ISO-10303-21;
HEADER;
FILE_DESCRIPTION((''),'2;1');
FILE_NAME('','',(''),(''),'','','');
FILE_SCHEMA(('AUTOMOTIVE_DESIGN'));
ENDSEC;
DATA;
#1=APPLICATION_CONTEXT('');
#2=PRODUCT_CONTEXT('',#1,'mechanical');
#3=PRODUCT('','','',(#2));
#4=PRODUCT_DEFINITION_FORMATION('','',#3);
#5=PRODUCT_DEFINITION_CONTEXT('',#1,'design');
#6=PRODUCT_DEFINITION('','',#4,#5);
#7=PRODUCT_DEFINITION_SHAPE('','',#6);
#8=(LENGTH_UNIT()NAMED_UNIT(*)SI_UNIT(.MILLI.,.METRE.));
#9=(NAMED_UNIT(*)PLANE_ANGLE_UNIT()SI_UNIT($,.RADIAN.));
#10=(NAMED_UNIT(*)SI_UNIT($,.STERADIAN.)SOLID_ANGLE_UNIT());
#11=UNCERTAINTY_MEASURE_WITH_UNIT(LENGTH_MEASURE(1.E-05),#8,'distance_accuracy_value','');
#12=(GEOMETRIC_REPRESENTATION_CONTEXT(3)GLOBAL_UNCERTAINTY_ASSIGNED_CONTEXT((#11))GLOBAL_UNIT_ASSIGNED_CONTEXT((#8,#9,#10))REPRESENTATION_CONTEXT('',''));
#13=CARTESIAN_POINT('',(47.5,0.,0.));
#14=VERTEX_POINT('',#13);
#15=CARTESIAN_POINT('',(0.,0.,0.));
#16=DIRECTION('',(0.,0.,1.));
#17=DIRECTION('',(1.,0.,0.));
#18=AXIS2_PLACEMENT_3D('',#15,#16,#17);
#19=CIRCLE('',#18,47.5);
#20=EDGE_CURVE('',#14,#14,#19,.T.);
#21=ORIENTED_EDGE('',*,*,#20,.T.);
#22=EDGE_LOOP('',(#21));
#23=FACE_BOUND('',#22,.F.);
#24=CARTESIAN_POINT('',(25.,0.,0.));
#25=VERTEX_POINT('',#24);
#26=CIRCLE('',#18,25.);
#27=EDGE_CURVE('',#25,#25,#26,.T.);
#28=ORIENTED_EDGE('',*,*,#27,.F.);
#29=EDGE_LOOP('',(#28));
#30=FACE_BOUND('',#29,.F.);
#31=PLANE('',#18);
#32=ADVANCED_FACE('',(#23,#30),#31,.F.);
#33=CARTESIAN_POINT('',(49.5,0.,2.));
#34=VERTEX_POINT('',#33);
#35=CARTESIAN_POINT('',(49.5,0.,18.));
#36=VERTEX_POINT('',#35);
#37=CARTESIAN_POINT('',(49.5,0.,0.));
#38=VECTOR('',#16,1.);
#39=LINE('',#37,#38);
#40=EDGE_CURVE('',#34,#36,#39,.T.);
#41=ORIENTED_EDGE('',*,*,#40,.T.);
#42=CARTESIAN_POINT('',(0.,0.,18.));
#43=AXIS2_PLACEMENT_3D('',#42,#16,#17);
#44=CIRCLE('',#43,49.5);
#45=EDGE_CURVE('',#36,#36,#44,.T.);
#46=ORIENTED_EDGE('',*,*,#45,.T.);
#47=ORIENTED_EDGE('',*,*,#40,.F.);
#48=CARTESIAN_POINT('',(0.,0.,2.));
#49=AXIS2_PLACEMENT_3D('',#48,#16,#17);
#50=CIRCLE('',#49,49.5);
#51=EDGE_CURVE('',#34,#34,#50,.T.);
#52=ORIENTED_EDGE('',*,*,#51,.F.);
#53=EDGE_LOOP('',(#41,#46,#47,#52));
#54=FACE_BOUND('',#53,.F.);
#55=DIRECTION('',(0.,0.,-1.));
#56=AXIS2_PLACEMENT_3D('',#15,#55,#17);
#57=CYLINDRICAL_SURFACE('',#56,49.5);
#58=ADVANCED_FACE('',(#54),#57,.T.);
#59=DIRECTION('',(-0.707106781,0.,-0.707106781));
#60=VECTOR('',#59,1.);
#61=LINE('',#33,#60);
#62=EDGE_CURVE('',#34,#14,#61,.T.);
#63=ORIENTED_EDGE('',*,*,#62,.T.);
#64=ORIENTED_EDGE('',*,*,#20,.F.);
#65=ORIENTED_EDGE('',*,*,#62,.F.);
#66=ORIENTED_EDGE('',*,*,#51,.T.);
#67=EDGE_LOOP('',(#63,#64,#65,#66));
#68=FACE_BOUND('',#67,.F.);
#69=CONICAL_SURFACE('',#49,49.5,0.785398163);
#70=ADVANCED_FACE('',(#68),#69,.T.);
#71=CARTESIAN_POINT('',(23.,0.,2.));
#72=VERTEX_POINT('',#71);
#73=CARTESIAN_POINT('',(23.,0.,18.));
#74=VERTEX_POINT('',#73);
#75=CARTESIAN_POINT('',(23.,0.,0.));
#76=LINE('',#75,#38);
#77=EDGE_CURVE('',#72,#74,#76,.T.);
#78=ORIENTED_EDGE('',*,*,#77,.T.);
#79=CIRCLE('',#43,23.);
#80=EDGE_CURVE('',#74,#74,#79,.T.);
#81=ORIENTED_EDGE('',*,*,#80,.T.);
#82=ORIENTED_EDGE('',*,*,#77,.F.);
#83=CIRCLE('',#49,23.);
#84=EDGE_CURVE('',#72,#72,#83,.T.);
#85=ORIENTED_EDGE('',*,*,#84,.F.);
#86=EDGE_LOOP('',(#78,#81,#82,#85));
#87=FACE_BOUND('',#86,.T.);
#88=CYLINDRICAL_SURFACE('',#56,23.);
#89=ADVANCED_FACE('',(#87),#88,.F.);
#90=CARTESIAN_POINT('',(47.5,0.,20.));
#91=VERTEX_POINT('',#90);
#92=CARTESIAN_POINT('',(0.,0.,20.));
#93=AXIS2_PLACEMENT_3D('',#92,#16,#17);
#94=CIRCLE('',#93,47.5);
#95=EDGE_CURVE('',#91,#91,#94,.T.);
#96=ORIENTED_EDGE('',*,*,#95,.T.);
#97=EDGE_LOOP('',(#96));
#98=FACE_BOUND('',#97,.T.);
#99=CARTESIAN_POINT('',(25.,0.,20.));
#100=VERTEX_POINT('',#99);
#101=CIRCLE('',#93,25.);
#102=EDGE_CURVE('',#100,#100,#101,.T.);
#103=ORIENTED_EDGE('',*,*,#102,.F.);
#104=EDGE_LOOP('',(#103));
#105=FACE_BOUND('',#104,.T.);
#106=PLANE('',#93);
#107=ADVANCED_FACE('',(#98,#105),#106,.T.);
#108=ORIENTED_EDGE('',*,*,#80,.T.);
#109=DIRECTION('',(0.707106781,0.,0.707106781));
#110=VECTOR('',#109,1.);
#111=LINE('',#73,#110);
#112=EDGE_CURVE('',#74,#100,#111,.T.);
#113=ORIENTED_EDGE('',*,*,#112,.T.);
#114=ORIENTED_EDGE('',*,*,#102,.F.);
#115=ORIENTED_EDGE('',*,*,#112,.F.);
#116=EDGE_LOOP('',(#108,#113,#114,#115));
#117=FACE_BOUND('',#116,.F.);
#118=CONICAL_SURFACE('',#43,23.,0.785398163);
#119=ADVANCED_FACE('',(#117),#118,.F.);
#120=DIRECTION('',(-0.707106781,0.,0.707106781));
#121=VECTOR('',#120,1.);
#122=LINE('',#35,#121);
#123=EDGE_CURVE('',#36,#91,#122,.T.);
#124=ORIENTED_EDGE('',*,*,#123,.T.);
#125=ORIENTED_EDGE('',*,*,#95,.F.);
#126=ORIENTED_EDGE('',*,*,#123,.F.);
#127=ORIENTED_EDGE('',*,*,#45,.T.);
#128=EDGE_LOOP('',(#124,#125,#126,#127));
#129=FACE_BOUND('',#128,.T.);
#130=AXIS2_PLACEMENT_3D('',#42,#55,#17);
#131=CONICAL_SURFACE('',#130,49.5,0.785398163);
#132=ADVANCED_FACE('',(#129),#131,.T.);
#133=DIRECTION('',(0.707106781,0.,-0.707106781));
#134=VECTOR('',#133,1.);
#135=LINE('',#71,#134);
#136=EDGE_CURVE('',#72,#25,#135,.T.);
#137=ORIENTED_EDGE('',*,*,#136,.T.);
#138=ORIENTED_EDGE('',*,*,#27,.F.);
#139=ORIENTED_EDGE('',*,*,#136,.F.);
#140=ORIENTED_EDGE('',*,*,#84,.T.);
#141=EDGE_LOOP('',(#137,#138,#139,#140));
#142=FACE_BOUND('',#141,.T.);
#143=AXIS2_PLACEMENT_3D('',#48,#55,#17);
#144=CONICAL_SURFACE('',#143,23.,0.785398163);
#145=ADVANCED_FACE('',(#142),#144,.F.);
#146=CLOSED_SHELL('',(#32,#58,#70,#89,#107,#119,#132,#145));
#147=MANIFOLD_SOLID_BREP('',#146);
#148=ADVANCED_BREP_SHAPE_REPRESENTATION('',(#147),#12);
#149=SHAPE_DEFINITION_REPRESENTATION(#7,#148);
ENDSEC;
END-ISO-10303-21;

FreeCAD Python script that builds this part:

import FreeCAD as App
import Part
import Sketcher
from FreeCAD import Vector
Q = App.Units.Quantity


def edges_at(feature, points):
    """Names of the edges that pass closest to the given points."""
    edges = feature.Shape.Edges
    near = lambda p: min(range(len(edges)), key=lambda i: edges[i].distToShape(Part.Vertex(*p))[0])
    return sorted({f"Edge{near(p) + 1}" for p in points})

doc = App.newDocument("Part")
body = doc.addObject("PartDesign::Body", "Body")

# Sketch on XY plane
sketch1 = body.newObject("Sketcher::SketchObject", "Sketch")
sketch1.AttachmentSupport = (doc.getObject("XY_Plane"), [""])
sketch1.MapMode = "FlatFace"
sketch1.addGeometry([
    Part.Circle(Vector(0, 0, 0), Vector(0, 0, 1), 49.5),
    Part.Circle(Vector(0, 0, 0), Vector(0, 0, 1), 23),
], False)
sketch1.addConstraint([
    Sketcher.Constraint("Coincident", 0, 3, -1, 1),
    Sketcher.Constraint("Coincident", 1, 3, -1, 1),
    Sketcher.Constraint("Diameter", 0, Q("99 mm")),
    Sketcher.Constraint("Diameter", 1, Q("46 mm")),
])
pad1 = body.newObject("PartDesign::Pad", "Pad")
pad1.Profile = sketch1
pad1.Length = 20
doc.recompute()

chamfer = body.newObject("PartDesign::Chamfer", "Chamfer")
chamfer.Base = (pad1, edges_at(pad1, [
    (-23, 0, 20),
    (-49.5, 0, 20),
    (-23, 0, 0),
    (-49.5, 0, 0),
]))
chamfer.Size = 2

doc.recompute()
